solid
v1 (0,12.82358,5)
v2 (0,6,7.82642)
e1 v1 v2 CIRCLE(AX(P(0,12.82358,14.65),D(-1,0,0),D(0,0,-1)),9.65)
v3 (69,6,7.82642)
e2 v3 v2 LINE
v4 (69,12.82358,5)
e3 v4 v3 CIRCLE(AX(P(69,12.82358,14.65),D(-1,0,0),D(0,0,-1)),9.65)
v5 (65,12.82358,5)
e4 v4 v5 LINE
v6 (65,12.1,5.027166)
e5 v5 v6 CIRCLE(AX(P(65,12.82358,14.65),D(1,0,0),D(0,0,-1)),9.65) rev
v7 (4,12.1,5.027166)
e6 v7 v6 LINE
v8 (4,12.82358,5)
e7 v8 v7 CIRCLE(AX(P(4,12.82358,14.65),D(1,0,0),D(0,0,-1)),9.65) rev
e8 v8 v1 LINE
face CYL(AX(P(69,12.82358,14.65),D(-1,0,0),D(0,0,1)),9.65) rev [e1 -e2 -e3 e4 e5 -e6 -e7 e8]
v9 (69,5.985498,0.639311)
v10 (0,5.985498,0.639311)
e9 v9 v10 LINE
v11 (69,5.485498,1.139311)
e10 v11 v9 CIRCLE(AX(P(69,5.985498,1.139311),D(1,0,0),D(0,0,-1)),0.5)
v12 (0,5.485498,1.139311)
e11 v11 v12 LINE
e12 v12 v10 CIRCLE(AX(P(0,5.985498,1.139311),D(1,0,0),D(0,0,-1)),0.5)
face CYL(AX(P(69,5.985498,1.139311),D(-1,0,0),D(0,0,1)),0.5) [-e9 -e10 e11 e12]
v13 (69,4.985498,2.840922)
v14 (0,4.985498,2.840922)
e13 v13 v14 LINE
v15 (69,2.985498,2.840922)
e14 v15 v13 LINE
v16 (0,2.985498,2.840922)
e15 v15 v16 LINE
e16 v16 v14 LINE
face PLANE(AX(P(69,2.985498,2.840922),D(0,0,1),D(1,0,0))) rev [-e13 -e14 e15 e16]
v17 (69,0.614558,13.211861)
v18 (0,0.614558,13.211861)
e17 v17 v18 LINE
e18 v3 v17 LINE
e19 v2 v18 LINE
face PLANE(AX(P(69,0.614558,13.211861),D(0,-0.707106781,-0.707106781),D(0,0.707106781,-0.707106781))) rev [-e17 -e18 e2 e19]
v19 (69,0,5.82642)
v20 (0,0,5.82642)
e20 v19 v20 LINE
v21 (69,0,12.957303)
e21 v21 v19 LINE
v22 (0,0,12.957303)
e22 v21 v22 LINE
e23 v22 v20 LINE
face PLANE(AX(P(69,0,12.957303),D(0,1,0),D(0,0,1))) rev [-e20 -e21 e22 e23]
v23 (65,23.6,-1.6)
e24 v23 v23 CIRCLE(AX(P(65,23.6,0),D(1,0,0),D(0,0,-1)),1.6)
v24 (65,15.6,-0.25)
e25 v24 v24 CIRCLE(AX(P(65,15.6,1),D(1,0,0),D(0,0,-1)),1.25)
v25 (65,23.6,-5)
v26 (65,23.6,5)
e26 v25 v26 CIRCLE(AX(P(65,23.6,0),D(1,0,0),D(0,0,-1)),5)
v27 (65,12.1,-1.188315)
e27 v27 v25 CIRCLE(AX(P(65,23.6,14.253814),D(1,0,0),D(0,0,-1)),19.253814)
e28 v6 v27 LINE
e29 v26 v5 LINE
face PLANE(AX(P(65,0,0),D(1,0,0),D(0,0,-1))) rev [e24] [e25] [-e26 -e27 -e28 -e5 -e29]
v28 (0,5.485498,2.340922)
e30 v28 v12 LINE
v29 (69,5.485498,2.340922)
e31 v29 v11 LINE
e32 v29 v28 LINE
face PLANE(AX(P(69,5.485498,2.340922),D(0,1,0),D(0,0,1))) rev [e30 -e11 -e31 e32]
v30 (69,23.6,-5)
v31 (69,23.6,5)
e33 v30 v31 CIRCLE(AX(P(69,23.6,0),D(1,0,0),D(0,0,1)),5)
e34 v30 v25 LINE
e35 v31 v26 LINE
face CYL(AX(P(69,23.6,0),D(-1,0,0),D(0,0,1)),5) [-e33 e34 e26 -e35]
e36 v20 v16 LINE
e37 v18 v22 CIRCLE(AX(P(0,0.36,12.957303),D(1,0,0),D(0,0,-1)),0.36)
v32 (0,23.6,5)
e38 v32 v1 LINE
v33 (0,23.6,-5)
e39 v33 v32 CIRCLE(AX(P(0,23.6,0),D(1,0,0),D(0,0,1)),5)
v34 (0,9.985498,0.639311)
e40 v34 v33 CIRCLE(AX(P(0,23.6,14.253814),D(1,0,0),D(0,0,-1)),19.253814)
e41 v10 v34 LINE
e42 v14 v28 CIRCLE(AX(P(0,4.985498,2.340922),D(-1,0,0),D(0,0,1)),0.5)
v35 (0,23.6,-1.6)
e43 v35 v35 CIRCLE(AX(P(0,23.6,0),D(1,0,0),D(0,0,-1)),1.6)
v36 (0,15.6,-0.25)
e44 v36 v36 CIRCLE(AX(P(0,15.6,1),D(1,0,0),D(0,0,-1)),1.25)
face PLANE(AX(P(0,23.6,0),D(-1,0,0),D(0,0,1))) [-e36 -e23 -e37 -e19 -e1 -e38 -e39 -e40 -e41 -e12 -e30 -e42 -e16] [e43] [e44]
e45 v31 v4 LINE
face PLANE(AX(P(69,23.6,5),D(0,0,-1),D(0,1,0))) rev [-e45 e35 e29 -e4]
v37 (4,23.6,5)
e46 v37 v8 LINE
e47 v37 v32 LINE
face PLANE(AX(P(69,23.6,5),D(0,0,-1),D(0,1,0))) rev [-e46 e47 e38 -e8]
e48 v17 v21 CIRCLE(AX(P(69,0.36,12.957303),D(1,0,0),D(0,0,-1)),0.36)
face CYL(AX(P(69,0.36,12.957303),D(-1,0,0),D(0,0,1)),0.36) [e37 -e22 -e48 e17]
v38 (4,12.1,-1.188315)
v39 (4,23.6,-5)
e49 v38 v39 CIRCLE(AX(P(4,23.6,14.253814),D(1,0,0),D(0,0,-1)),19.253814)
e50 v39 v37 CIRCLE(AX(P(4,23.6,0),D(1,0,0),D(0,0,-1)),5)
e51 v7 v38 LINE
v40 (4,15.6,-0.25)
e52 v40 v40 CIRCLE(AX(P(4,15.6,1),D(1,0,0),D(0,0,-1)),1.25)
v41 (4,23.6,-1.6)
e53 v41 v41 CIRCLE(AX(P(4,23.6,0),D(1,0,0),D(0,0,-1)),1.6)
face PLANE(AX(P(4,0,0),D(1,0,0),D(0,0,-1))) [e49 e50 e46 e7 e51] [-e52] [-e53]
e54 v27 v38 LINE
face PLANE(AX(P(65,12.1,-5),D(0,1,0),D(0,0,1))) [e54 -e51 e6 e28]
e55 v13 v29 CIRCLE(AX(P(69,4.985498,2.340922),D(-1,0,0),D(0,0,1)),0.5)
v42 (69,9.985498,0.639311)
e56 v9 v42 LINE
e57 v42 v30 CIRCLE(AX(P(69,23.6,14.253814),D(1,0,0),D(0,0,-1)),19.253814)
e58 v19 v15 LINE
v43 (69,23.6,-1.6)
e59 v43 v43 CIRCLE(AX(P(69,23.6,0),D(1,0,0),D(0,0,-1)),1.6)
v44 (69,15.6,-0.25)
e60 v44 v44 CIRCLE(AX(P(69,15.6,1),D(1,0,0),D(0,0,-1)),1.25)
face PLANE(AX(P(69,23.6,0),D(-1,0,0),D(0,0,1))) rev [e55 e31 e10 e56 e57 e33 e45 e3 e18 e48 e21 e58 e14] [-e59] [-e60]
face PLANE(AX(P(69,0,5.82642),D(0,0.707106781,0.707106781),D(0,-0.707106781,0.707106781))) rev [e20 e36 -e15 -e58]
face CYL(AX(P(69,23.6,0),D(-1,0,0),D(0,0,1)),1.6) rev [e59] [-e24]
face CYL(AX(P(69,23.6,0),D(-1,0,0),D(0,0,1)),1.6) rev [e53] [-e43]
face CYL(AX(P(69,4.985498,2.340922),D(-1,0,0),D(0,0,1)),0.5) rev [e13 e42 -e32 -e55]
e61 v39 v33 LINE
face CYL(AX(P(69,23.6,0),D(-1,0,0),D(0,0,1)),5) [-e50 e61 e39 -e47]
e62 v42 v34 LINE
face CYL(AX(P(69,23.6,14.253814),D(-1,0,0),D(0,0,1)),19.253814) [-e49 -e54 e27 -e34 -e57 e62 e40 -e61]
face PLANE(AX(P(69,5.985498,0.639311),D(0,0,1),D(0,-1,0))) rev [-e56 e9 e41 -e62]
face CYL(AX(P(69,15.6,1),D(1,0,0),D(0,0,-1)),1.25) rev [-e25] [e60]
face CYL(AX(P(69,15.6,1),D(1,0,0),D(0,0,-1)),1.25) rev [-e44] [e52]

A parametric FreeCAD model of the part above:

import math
import FreeCAD as App
import Part
import Sketcher
from FreeCAD import Vector
Q = App.Units.Quantity

doc = App.newDocument("Part")
body = doc.addObject("PartDesign::Body", "Body")

sketch1 = body.newObject("Sketcher::SketchObject", "Sketch")
sketch1.AttachmentSupport = (doc.getObject("YZ_Plane"), [""])
sketch1.MapMode = "FlatFace"
sketch1.addGeometry([
    Part.LineSegment(Vector(23.6, 5, 0), Vector(12.82, 5, 0)),
    Part.ArcOfCircle(Part.Circle(Vector(12.82, 14.65, 0), Vector(0, 0, 1), 9.65), math.radians(-135), math.radians(-90)),
    Part.LineSegment(Vector(6, 7.83, 0), Vector(0.61, 13.21, 0)),
    Part.ArcOfCircle(Part.Circle(Vector(0.36, 12.96, 0), Vector(0, 0, 1), 0.36), math.radians(45), math.radians(180)),
    Part.LineSegment(Vector(0, 12.96, 0), Vector(0, 5.83, 0)),
    Part.LineSegment(Vector(0, 5.83, 0), Vector(2.99, 2.84, 0)),
    Part.LineSegment(Vector(2.99, 2.84, 0), Vector(4.99, 2.84, 0)),
    Part.ArcOfCircle(Part.Circle(Vector(4.99, 2.34, 0), Vector(0, 0, 1), 0.5), math.radians(0), math.radians(90)),
    Part.LineSegment(Vector(5.49, 2.34, 0), Vector(5.49, 1.14, 0)),
    Part.ArcOfCircle(Part.Circle(Vector(5.99, 1.14, 0), Vector(0, 0, 1), 0.5), math.radians(180), math.radians(270)),
    Part.LineSegment(Vector(5.99, 0.64, 0), Vector(9.99, 0.64, 0)),
    Part.ArcOfCircle(Part.Circle(Vector(23.6, 14.25, 0), Vector(0, 0, 1), 19.25), math.radians(-135), math.radians(-90)),
    Part.ArcOfCircle(Part.Circle(Vector(23.6, 0, 0), Vector(0, 0, 1), 5), math.radians(-90), math.radians(90)),
    Part.Circle(Vector(23.6, 0, 0), Vector(0, 0, 1), 1.6),
], False)
sketch1.addConstraint([
    Sketcher.Constraint("Tangent", 0, 2, 1, 2),
    Sketcher.Constraint("Tangent", 1, 1, 2, 1),
    Sketcher.Constraint("Tangent", 2, 2, 3, 1),
    Sketcher.Constraint("Tangent", 3, 2, 4, 1),
    Sketcher.Constraint("Coincident", 4, 2, 5, 1),
    Sketcher.Constraint("Coincident", 5, 2, 6, 1),
    Sketcher.Constraint("Tangent", 6, 2, 7, 2),
    Sketcher.Constraint("Tangent", 7, 1, 8, 1),
    Sketcher.Constraint("Tangent", 8, 2, 9, 1),
    Sketcher.Constraint("Tangent", 9, 2, 10, 1),
    Sketcher.Constraint("Coincident", 10, 2, 11, 1),
    Sketcher.Constraint("Tangent", 11, 2, 12, 1),
    Sketcher.Constraint("Tangent", 12, 2, 0, 1),
    Sketcher.Constraint("Horizontal", 0),
    Sketcher.Constraint("Vertical", 4),
    Sketcher.Constraint("Horizontal", 6),
    Sketcher.Constraint("Vertical", 8),
    Sketcher.Constraint("Horizontal", 10),
    Sketcher.Constraint("Coincident", 13, 3, 12, 3),
    Sketcher.Constraint("Equal", 7, 9),
    Sketcher.Constraint("Symmetric", 11, 2, 12, 2, -1),
    Sketcher.Constraint("PointOnObject", 3, 2, -2),
    Sketcher.Constraint("Parallel", 2, 5),
    Sketcher.Constraint("Radius", 12, Q("5 mm")),
    Sketcher.Constraint("Diameter", 13, Q("3.2 mm")),
    Sketcher.Constraint("Radius", 7, Q("0.5 mm")),
    Sketcher.Constraint("DistanceX", 6, 1, 6, 2, Q("2 mm")),
    Sketcher.Constraint("DistanceX", 10, 1, 10, 2, Q("4 mm")),
    Sketcher.Constraint("Angle", 2, Q("135 deg")),
    Sketcher.Constraint("Radius", 1, Q("9.65 mm")),
    Sketcher.Constraint("Radius", 3, Q("0.36 mm")),
    Sketcher.Constraint("DistanceX", -1, 1, 1, 1, Q("6 mm")),
    Sketcher.Constraint("DistanceY", 4, 2, 1, 1, Q("2 mm")),
    Sketcher.Constraint("DistanceX", -1, 1, 11, 3, Q("23.6 mm")),
    Sketcher.Constraint("Radius", 11, Q("19.253814 mm")),
    Sketcher.Constraint("Distance", 5, Q("4.222131 mm")),
])
pad1 = body.newObject("PartDesign::Pad", "Pad")
pad1.Profile = sketch1
pad1.Length = 69

sketch2 = body.newObject("Sketcher::SketchObject", "Sketch001")
sketch2.AttachmentSupport = (doc.getObject("YZ_Plane"), [""])
sketch2.MapMode = "FlatFace"
sketch2.AttachmentOffset = App.Placement(Vector(0, 0, 4), App.Rotation())
sketch2.addGeometry([
    Part.LineSegment(Vector(29, 16, 0), Vector(12, 16, 0)),
    Part.LineSegment(Vector(12, 16, 0), Vector(12, -5, 0)),
    Part.LineSegment(Vector(12, -5, 0), Vector(29, -5, 0)),
    Part.LineSegment(Vector(29, -5, 0), Vector(29, 16, 0)),
], False)
sketch2.addConstraint([
    Sketcher.Constraint("Coincident", 0, 2, 1, 1),
    Sketcher.Constraint("Coincident", 1, 2, 2, 1),
    Sketcher.Constraint("Coincident", 2, 2, 3, 1),
    Sketcher.Constraint("Coincident", 3, 2, 0, 1),
    Sketcher.Constraint("Horizontal", 0),
    Sketcher.Constraint("Vertical", 1),
    Sketcher.Constraint("Horizontal", 2),
    Sketcher.Constraint("Vertical", 3),
    Sketcher.Constraint("DistanceX", 0, 2, 0, 1, Q("16.5 mm")),
    Sketcher.Constraint("DistanceY", 1, 2, -1, 1, Q("5 mm")),
    Sketcher.Constraint("DistanceX", -1, 1, 0, 2, Q("12.1 mm")),
    Sketcher.Constraint("DistanceY", 1, 2, 1, 1, Q("21.169042 mm")),
])
pocket1 = body.newObject("PartDesign::Pocket", "Pocket")
pocket1.Profile = sketch2
pocket1.Length = 61
pocket1.Reversed = True

sketch3 = body.newObject("Sketcher::SketchObject", "Sketch002")
sketch3.AttachmentSupport = (doc.getObject("YZ_Plane"), [""])
sketch3.MapMode = "FlatFace"
sketch3.AttachmentOffset = App.Placement(Vector(0, 0, 69), App.Rotation())
sketch3.addGeometry(Part.Circle(Vector(15.6, 1, 0), Vector(0, 0, 1), 1.2), False)
sketch3.addConstraint([
    Sketcher.Constraint("Diameter", 0, Q("2.5 mm")),
    Sketcher.Constraint("DistanceY", -1, 1, 0, 3, Q("1 mm")),
    Sketcher.Constraint("DistanceX", -1, 1, 0, 3, Q("15.6 mm")),
])
doc.recompute()
hole = body.newObject("PartDesign::Hole", "Hole")
hole.Profile = sketch3
hole.ThreadType = "None"
hole.Diameter = 2.5
hole.DepthType = "ThroughAll"

doc.recompute()
